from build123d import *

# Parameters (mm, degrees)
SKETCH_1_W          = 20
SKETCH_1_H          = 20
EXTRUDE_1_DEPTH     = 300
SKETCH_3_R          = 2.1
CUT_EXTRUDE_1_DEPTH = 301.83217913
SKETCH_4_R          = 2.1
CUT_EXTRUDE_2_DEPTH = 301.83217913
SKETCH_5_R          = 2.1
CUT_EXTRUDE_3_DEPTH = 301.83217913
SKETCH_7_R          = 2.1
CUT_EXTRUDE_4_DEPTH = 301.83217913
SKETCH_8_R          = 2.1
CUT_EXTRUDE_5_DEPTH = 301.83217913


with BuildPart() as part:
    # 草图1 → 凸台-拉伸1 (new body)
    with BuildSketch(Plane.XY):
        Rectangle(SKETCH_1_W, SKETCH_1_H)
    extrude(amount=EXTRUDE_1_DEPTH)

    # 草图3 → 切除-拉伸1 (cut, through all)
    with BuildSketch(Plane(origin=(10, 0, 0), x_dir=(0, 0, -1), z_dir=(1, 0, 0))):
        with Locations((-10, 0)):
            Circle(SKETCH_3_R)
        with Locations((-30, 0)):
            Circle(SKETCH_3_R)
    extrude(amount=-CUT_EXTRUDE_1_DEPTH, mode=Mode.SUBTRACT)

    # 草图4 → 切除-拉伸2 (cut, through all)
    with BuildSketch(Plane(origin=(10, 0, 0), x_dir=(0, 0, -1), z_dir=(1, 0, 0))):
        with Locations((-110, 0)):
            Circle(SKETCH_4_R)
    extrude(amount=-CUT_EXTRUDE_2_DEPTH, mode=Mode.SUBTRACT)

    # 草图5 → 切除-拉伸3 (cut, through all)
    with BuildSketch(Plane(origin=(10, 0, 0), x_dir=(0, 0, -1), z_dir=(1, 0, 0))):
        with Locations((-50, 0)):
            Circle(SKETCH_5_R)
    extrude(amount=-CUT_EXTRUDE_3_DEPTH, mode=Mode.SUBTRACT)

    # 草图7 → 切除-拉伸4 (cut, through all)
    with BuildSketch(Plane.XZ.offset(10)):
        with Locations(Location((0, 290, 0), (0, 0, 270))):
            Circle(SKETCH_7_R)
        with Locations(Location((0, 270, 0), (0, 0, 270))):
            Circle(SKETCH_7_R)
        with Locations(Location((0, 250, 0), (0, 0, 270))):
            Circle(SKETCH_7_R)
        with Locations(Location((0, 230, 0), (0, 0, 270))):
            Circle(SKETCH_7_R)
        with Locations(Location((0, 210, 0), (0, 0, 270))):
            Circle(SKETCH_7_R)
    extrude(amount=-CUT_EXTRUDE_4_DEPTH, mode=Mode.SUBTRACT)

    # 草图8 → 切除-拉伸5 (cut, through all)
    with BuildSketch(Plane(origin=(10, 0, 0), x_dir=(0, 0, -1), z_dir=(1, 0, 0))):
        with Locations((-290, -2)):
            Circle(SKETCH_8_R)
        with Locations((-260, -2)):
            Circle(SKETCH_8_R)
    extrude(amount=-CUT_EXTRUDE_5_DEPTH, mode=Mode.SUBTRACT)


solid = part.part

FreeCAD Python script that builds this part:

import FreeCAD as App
import Part
import Sketcher
from FreeCAD import Vector
Q = App.Units.Quantity

doc = App.newDocument("Part")
params = doc.addObject("Spreadsheet::Sheet", "Params")
for row, (alias, value) in enumerate([
    ("sketch1_width", "20 mm"),
    ("pad1_length", "300 mm"),
    ("sketch2_diameter", "4.2 mm"),
    ("sketch3_diameter", "4.2 mm"),
    ("sketch4_diameter", "4.2 mm"),
    ("sketch5_diameter", "4.2 mm"),
    ("sketch6_diameter", "4.2 mm"),
], start=1):
    params.set(f"A{row}", alias)
    params.set(f"B{row}", "=" + value)
    params.setAlias(f"B{row}", alias)

body = doc.addObject("PartDesign::Body", "Body")

sketch1 = body.newObject("Sketcher::SketchObject", "Sketch")
sketch1.AttachmentSupport = (doc.getObject("XY_Plane"), [""])
sketch1.MapMode = "FlatFace"
sketch1.addGeometry([
    Part.LineSegment(Vector(-10, 10, 0), Vector(-10, -10, 0)),
    Part.LineSegment(Vector(-10, -10, 0), Vector(10, -10, 0)),
    Part.LineSegment(Vector(10, -10, 0), Vector(10, 10, 0)),
    Part.LineSegment(Vector(10, 10, 0), Vector(-10, 10, 0)),
], False)
sketch1.addConstraint([
    Sketcher.Constraint("Coincident", 0, 2, 1, 1),
    Sketcher.Constraint("Coincident", 1, 2, 2, 1),
    Sketcher.Constraint("Coincident", 2, 2, 3, 1),
    Sketcher.Constraint("Coincident", 3, 2, 0, 1),
    Sketcher.Constraint("Vertical", 0),
    Sketcher.Constraint("Horizontal", 1),
    Sketcher.Constraint("Vertical", 2),
    Sketcher.Constraint("Horizontal", 3),
    Sketcher.Constraint("Symmetric", 0, 2, 2, 2, -1, 1),
    Sketcher.Constraint("Equal", 3, 0),
    Sketcher.Constraint("DistanceX", 1, 1, 1, 2, Q("20 mm")),
])
sketch1.setExpression("Constraints[10]", "Params.sketch1_width")
pad1 = body.newObject("PartDesign::Pad", "Pad")
pad1.Profile = sketch1
pad1.setExpression("Length", "Params.pad1_length")

sketch2 = body.newObject("Sketcher::SketchObject", "Sketch001")
sketch2.AttachmentSupport = (doc.getObject("YZ_Plane"), [""])
sketch2.MapMode = "FlatFace"
sketch2.AttachmentOffset = App.Placement(Vector(0, 0, 10), App.Rotation())
sketch2.addGeometry([
    Part.Circle(Vector(0, 10, 0), Vector(0, 0, 1), 2.1),
    Part.Circle(Vector(0, 30, 0), Vector(0, 0, 1), 2.1),
], False)
sketch2.addConstraint([
    Sketcher.Constraint("Equal", 0, 1),
    Sketcher.Constraint("PointOnObject", 0, 3, -2),
    Sketcher.Constraint("PointOnObject", 1, 3, -2),
    Sketcher.Constraint("Diameter", 0, Q("4.2 mm")),
    Sketcher.Constraint("DistanceY", -1, 1, 0, 3, Q("10 mm")),
    Sketcher.Constraint("DistanceY", -1, 1, 1, 3, Q("30 mm")),
])
sketch2.setExpression("Constraints[3]", "Params.sketch2_diameter")
pocket1 = body.newObject("PartDesign::Pocket", "Pocket")
pocket1.Profile = sketch2
pocket1.Type = "ThroughAll"

sketch3 = body.newObject("Sketcher::SketchObject", "Sketch002")
sketch3.AttachmentSupport = (doc.getObject("YZ_Plane"), [""])
sketch3.MapMode = "FlatFace"
sketch3.AttachmentOffset = App.Placement(Vector(0, 0, 10), App.Rotation())
sketch3.addGeometry(Part.Circle(Vector(0, 110, 0), Vector(0, 0, 1), 2.1), False)
sketch3.addConstraint([
    Sketcher.Constraint("PointOnObject", 0, 3, -2),
    Sketcher.Constraint("Diameter", 0, Q("4.2 mm")),
    Sketcher.Constraint("DistanceY", -1, 1, 0, 3, Q("110 mm")),
])
sketch3.setExpression("Constraints[1]", "Params.sketch3_diameter")
pocket2 = body.newObject("PartDesign::Pocket", "Pocket001")
pocket2.Profile = sketch3
pocket2.Type = "ThroughAll"

sketch4 = body.newObject("Sketcher::SketchObject", "Sketch003")
sketch4.AttachmentSupport = (doc.getObject("YZ_Plane"), [""])
sketch4.MapMode = "FlatFace"
sketch4.AttachmentOffset = App.Placement(Vector(0, 0, 10), App.Rotation())
sketch4.addGeometry(Part.Circle(Vector(0, 50, 0), Vector(0, 0, 1), 2.1), False)
sketch4.addConstraint([
    Sketcher.Constraint("PointOnObject", 0, 3, -2),
    Sketcher.Constraint("Diameter", 0, Q("4.2 mm")),
    Sketcher.Constraint("DistanceY", -1, 1, 0, 3, Q("50 mm")),
])
sketch4.setExpression("Constraints[1]", "Params.sketch4_diameter")
pocket3 = body.newObject("PartDesign::Pocket", "Pocket002")
pocket3.Profile = sketch4
pocket3.Type = "ThroughAll"

sketch5 = body.newObject("Sketcher::SketchObject", "Sketch004")
sketch5.AttachmentSupport = (doc.getObject("XZ_Plane"), [""])
sketch5.MapMode = "FlatFace"
sketch5.AttachmentOffset = App.Placement(Vector(0, 0, 10), App.Rotation())
sketch5.addGeometry([
    Part.Circle(Vector(0, 290, 0), Vector(0, 0, 1), 2.1),
    Part.Circle(Vector(0, 270, 0), Vector(0, 0, 1), 2.1),
    Part.Circle(Vector(0, 250, 0), Vector(0, 0, 1), 2.1),
    Part.Circle(Vector(0, 230, 0), Vector(0, 0, 1), 2.1),
    Part.Circle(Vector(0, 210, 0), Vector(0, 0, 1), 2.1),
], False)
sketch5.addConstraint([
    Sketcher.Constraint("Equal", 0, 1),
    Sketcher.Constraint("Equal", 1, 2),
    Sketcher.Constraint("Equal", 2, 3),
    Sketcher.Constraint("Equal", 3, 4),
    Sketcher.Constraint("PointOnObject", 0, 3, -2),
    Sketcher.Constraint("PointOnObject", 1, 3, -2),
    Sketcher.Constraint("PointOnObject", 2, 3, -2),
    Sketcher.Constraint("PointOnObject", 3, 3, -2),
    Sketcher.Constraint("PointOnObject", 4, 3, -2),
    Sketcher.Constraint("Diameter", 0, Q("4.2 mm")),
    Sketcher.Constraint("DistanceY", -1, 1, 0, 3, Q("290 mm")),
    Sketcher.Constraint("DistanceY", -1, 1, 1, 3, Q("270 mm")),
    Sketcher.Constraint("DistanceY", -1, 1, 2, 3, Q("250 mm")),
    Sketcher.Constraint("DistanceY", -1, 1, 3, 3, Q("230 mm")),
    Sketcher.Constraint("DistanceY", -1, 1, 4, 3, Q("210 mm")),
])
sketch5.setExpression("Constraints[9]", "Params.sketch5_diameter")
pocket4 = body.newObject("PartDesign::Pocket", "Pocket003")
pocket4.Profile = sketch5
pocket4.Type = "ThroughAll"

sketch6 = body.newObject("Sketcher::SketchObject", "Sketch005")
sketch6.AttachmentSupport = (doc.getObject("YZ_Plane"), [""])
sketch6.MapMode = "FlatFace"
sketch6.AttachmentOffset = App.Placement(Vector(0, 0, 10), App.Rotation())
sketch6.addGeometry([
    Part.Circle(Vector(-2, 290, 0), Vector(0, 0, 1), 2.1),
    Part.Circle(Vector(-2, 260, 0), Vector(0, 0, 1), 2.1),
], False)
sketch6.addConstraint([
    Sketcher.Constraint("Equal", 0, 1),
    Sketcher.Constraint("Vertical", 0, 3, 1, 3),
    Sketcher.Constraint("Diameter", 0, Q("4.2 mm")),
    Sketcher.Constraint("DistanceX", 0, 3, -1, 1, Q("2 mm")),
    Sketcher.Constraint("DistanceY", -1, 1, 0, 3, Q("290 mm")),
    Sketcher.Constraint("DistanceY", -1, 1, 1, 3, Q("260 mm")),
])
sketch6.setExpression("Constraints[2]", "Params.sketch6_diameter")
pocket5 = body.newObject("PartDesign::Pocket", "Pocket004")
pocket5.Profile = sketch6
pocket5.Type = "ThroughAll"

doc.recompute()
